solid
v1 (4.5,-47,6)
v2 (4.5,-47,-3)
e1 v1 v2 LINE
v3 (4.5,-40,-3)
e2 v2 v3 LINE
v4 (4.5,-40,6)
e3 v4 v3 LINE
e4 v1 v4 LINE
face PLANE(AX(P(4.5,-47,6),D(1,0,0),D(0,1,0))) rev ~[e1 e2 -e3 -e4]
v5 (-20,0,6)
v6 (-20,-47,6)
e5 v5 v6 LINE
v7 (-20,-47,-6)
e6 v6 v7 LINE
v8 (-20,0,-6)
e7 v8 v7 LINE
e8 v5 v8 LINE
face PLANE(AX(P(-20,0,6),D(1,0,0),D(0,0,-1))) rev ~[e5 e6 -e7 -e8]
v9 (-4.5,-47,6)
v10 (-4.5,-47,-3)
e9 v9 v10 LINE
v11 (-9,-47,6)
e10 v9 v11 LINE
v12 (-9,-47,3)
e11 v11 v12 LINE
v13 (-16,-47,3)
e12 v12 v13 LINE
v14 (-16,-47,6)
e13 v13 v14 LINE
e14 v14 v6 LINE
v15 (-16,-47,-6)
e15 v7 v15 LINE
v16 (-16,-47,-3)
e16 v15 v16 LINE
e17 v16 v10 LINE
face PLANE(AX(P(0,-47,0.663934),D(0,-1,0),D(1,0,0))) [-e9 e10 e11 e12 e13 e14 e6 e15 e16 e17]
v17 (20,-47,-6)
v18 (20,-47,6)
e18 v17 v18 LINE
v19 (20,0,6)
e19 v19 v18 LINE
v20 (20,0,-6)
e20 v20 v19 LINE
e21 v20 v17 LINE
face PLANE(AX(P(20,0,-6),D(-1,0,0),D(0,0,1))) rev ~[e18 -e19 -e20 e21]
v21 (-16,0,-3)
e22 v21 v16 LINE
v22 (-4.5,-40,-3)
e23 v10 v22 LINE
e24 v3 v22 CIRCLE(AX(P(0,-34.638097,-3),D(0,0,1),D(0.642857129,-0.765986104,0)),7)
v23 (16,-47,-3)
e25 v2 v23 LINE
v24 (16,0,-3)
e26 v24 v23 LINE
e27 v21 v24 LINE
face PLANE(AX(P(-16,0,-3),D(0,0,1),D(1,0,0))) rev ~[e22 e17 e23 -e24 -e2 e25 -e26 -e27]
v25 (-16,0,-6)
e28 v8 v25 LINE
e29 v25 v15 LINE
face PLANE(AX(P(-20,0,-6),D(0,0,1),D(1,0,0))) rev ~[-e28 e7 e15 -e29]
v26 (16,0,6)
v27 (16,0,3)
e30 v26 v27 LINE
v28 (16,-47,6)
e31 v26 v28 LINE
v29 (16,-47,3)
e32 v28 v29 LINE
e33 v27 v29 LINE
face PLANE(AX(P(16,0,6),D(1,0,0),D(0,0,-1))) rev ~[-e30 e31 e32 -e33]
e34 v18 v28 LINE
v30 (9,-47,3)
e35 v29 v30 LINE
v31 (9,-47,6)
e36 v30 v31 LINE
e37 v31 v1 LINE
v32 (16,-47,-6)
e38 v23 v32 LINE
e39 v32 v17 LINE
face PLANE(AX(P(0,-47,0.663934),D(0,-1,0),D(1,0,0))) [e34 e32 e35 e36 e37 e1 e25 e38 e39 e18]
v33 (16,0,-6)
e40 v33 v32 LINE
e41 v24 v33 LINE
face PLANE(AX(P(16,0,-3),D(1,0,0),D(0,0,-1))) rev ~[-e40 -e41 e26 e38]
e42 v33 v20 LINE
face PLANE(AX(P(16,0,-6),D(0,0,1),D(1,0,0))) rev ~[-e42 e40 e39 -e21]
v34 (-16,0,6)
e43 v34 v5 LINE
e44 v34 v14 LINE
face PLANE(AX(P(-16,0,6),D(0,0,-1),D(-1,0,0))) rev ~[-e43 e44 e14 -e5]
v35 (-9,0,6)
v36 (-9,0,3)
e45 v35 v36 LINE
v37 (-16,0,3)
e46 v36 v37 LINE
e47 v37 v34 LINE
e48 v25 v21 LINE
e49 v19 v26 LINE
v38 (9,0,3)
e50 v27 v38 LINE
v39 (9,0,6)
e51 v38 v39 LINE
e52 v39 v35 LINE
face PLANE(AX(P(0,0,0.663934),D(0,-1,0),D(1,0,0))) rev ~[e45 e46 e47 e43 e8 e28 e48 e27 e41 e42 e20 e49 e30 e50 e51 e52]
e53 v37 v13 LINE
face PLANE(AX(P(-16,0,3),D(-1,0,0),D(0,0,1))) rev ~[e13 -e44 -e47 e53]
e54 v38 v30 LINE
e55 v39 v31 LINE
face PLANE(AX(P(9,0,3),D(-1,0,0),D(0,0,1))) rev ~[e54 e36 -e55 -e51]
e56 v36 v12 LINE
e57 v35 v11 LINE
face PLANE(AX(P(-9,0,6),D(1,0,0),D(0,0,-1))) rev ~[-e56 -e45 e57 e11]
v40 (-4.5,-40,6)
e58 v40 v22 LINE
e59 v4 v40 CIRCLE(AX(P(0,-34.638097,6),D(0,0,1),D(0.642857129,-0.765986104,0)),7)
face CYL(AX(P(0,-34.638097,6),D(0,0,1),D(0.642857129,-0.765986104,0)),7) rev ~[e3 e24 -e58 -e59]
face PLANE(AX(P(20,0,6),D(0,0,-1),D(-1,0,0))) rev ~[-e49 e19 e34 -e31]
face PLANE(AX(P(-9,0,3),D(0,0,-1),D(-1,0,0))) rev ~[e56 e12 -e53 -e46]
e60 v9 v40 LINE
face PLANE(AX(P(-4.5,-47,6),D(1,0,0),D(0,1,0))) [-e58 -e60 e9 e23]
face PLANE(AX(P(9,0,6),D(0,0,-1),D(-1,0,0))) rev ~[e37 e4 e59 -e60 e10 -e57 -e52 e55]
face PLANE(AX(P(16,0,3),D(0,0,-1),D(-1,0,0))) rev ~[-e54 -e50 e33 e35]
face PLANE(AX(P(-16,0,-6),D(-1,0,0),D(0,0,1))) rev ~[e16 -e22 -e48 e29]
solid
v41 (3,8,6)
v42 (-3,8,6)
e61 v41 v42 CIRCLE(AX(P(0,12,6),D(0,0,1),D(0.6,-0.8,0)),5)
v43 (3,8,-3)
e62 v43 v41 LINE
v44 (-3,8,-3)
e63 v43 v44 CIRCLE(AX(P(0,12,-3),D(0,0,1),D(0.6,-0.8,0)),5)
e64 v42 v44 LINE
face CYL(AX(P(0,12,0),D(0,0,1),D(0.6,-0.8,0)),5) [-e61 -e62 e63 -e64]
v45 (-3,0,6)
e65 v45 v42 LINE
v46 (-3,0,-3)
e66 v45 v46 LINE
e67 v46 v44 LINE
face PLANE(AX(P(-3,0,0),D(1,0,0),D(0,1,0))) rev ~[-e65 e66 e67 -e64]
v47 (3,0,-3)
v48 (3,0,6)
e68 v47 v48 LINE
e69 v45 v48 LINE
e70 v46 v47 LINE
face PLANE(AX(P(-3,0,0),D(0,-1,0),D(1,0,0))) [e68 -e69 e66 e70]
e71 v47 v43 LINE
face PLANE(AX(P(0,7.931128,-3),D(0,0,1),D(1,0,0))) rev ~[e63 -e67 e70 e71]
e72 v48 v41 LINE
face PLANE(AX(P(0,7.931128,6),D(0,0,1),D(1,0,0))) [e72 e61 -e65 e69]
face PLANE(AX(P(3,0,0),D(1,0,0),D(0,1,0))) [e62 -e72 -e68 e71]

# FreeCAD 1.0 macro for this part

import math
import FreeCAD as App
import Part
import Sketcher
Q = App.Units.Quantity

doc = App.newDocument("Part")
body = doc.addObject("PartDesign::Body", "Body")

sketch1 = body.newObject("Sketcher::SketchObject", "Sketch")
sketch1.AttachmentSupport = (doc.getObject("XZ_Plane"), [""])
sketch1.MapMode = "FlatFace"
sketch1.addGeometry(Part.LineSegment(App.Vector(-20, 6, 0), App.Vector(-20, -6, 0)), False)
sketch1.addGeometry(Part.LineSegment(App.Vector(-20, -6, 0), App.Vector(-16, -6, 0)), False)
sketch1.addGeometry(Part.LineSegment(App.Vector(-16, -6, 0), App.Vector(-16, -3, 0)), False)
sketch1.addGeometry(Part.LineSegment(App.Vector(-16, -3, 0), App.Vector(16, -3, 0)), False)
sketch1.addGeometry(Part.LineSegment(App.Vector(16, -3, 0), App.Vector(16, -6, 0)), False)
sketch1.addGeometry(Part.LineSegment(App.Vector(16, -6, 0), App.Vector(20, -6, 0)), False)
sketch1.addGeometry(Part.LineSegment(App.Vector(20, -6, 0), App.Vector(20, 6, 0)), False)
sketch1.addGeometry(Part.LineSegment(App.Vector(20, 6, 0), App.Vector(16, 6, 0)), False)
sketch1.addGeometry(Part.LineSegment(App.Vector(16, 6, 0), App.Vector(16, 3, 0)), False)
sketch1.addGeometry(Part.LineSegment(App.Vector(16, 3, 0), App.Vector(9, 3, 0)), False)
sketch1.addGeometry(Part.LineSegment(App.Vector(9, 3, 0), App.Vector(9, 6, 0)), False)
sketch1.addGeometry(Part.LineSegment(App.Vector(9, 6, 0), App.Vector(-9, 6, 0)), False)
sketch1.addGeometry(Part.LineSegment(App.Vector(-9, 6, 0), App.Vector(-9, 3, 0)), False)
sketch1.addGeometry(Part.LineSegment(App.Vector(-9, 3, 0), App.Vector(-16, 3, 0)), False)
sketch1.addGeometry(Part.LineSegment(App.Vector(-16, 3, 0), App.Vector(-16, 6, 0)), False)
sketch1.addGeometry(Part.LineSegment(App.Vector(-16, 6, 0), App.Vector(-20, 6, 0)), False)
sketch1.addConstraint(Sketcher.Constraint("Coincident", 0, 2, 1, 1))
sketch1.addConstraint(Sketcher.Constraint("Coincident", 1, 2, 2, 1))
sketch1.addConstraint(Sketcher.Constraint("Coincident", 2, 2, 3, 1))
sketch1.addConstraint(Sketcher.Constraint("Coincident", 3, 2, 4, 1))
sketch1.addConstraint(Sketcher.Constraint("Coincident", 4, 2, 5, 1))
sketch1.addConstraint(Sketcher.Constraint("Coincident", 5, 2, 6, 1))
sketch1.addConstraint(Sketcher.Constraint("Coincident", 6, 2, 7, 1))
sketch1.addConstraint(Sketcher.Constraint("Coincident", 7, 2, 8, 1))
sketch1.addConstraint(Sketcher.Constraint("Coincident", 8, 2, 9, 1))
sketch1.addConstraint(Sketcher.Constraint("Coincident", 9, 2, 10, 1))
sketch1.addConstraint(Sketcher.Constraint("Coincident", 10, 2, 11, 1))
sketch1.addConstraint(Sketcher.Constraint("Coincident", 11, 2, 12, 1))
sketch1.addConstraint(Sketcher.Constraint("Coincident", 12, 2, 13, 1))
sketch1.addConstraint(Sketcher.Constraint("Coincident", 13, 2, 14, 1))
sketch1.addConstraint(Sketcher.Constraint("Coincident", 14, 2, 15, 1))
sketch1.addConstraint(Sketcher.Constraint("Coincident", 15, 2, 0, 1))
sketch1.addConstraint(Sketcher.Constraint("Vertical", 0))
sketch1.addConstraint(Sketcher.Constraint("Horizontal", 1))
sketch1.addConstraint(Sketcher.Constraint("Vertical", 2))
sketch1.addConstraint(Sketcher.Constraint("Horizontal", 3))
sketch1.addConstraint(Sketcher.Constraint("Vertical", 4))
sketch1.addConstraint(Sketcher.Constraint("Horizontal", 5))
sketch1.addConstraint(Sketcher.Constraint("Vertical", 6))
sketch1.addConstraint(Sketcher.Constraint("Horizontal", 7))
sketch1.addConstraint(Sketcher.Constraint("Vertical", 8))
sketch1.addConstraint(Sketcher.Constraint("Horizontal", 9))
sketch1.addConstraint(Sketcher.Constraint("Vertical", 10))
sketch1.addConstraint(Sketcher.Constraint("Horizontal", 11))
sketch1.addConstraint(Sketcher.Constraint("Vertical", 12))
sketch1.addConstraint(Sketcher.Constraint("Horizontal", 13))
sketch1.addConstraint(Sketcher.Constraint("Vertical", 14))
sketch1.addConstraint(Sketcher.Constraint("Horizontal", 15))
sketch1.addConstraint(Sketcher.Constraint("Symmetric", 0, 2, 6, 2, -1, 1))
sketch1.addConstraint(Sketcher.Constraint("Symmetric", 2, 2, 8, 2, -1, 1))
sketch1.addConstraint(Sketcher.Constraint("Symmetric", 3, 2, 13, 2, -1, 1))
sketch1.addConstraint(Sketcher.Constraint("Symmetric", 1, 2, 4, 2, -2))
sketch1.addConstraint(Sketcher.Constraint("Horizontal", 7, 2, 10, 2))
sketch1.addConstraint(Sketcher.Constraint("Horizontal", 11, 2, 14, 2))
sketch1.addConstraint(Sketcher.Constraint("Equal", 9, 13))
sketch1.addConstraint(Sketcher.Constraint("DistanceX", 1, 1, 1, 2, Q("4 mm")))
sketch1.addConstraint(Sketcher.Constraint("DistanceX", 3, 1, 3, 2, Q("32 mm")))
sketch1.addConstraint(Sketcher.Constraint("DistanceX", 9, 2, 9, 1, Q("7 mm")))
sketch1.addConstraint(Sketcher.Constraint("DistanceY", 0, 2, 0, 1, Q("12 mm")))
sketch1.addConstraint(Sketcher.Constraint("DistanceY", 2, 1, 2, 2, Q("3 mm")))
pad1 = body.newObject("PartDesign::Pad", "Pad")
pad1.Profile = sketch1
pad1.Length = 47

sketch2 = body.newObject("Sketcher::SketchObject", "Sketch001")
sketch2.AttachmentSupport = (doc.getObject("XY_Plane"), [""])
sketch2.MapMode = "FlatFace"
sketch2.AttachmentOffset = App.Placement(App.Vector(0, 0, 6), App.Rotation())
sketch2.addGeometry(Part.LineSegment(App.Vector(-4, -47, 0), App.Vector(4, -47, 0)), False)
sketch2.addGeometry(Part.LineSegment(App.Vector(4, -47, 0), App.Vector(4, -40, 0)), False)
sketch2.addGeometry(Part.ArcOfCircle(Part.Circle(App.Vector(0, -35, 0), App.Vector(0, 0, 1), 7), math.radians(-50), math.radians(230)), False)
sketch2.addGeometry(Part.LineSegment(App.Vector(-4, -40, 0), App.Vector(-4, -47, 0)), False)
sketch2.addConstraint(Sketcher.Constraint("Coincident", 0, 2, 1, 1))
sketch2.addConstraint(Sketcher.Constraint("Coincident", 1, 2, 2, 1))
sketch2.addConstraint(Sketcher.Constraint("Coincident", 2, 2, 3, 1))
sketch2.addConstraint(Sketcher.Constraint("Coincident", 3, 2, 0, 1))
sketch2.addConstraint(Sketcher.Constraint("Horizontal", 0))
sketch2.addConstraint(Sketcher.Constraint("Vertical", 1))
sketch2.addConstraint(Sketcher.Constraint("Vertical", 3))
sketch2.addConstraint(Sketcher.Constraint("Symmetric", 1, 2, 2, 2, -2))
sketch2.addConstraint(Sketcher.Constraint("Radius", 2, Q("7 mm")))
sketch2.addConstraint(Sketcher.Constraint("DistanceX", 0, 1, 0, 2, Q("9 mm")))
sketch2.addConstraint(Sketcher.Constraint("DistanceY", 1, 1, 1, 2, Q("7 mm")))
sketch2.addConstraint(Sketcher.Constraint("DistanceY", 0, 2, -1, 1, Q("47 mm")))
pocket1 = body.newObject("PartDesign::Pocket", "Pocket")
pocket1.Profile = sketch2
pocket1.Type = "ThroughAll"
body2 = doc.addObject("PartDesign::Body", "Body001")

sketch3 = body2.newObject("Sketcher::SketchObject", "Sketch002")
sketch3.AttachmentSupport = (doc.getObject("XY_Plane001"), [""])
sketch3.MapMode = "FlatFace"
sketch3.addGeometry(Part.LineSegment(App.Vector(-3, 0, 0), App.Vector(3, 0, 0)), False)
sketch3.addGeometry(Part.LineSegment(App.Vector(3, 0, 0), App.Vector(3, 8, 0)), False)
sketch3.addGeometry(Part.ArcOfCircle(Part.Circle(App.Vector(0, 12, 0), App.Vector(0, 0, 1), 5), math.radians(-53), math.radians(233)), False)
sketch3.addGeometry(Part.LineSegment(App.Vector(-3, 8, 0), App.Vector(-3, 0, 0)), False)
sketch3.addConstraint(Sketcher.Constraint("Coincident", 0, 2, 1, 1))
sketch3.addConstraint(Sketcher.Constraint("Coincident", 1, 2, 2, 1))
sketch3.addConstraint(Sketcher.Constraint("Coincident", 2, 2, 3, 1))
sketch3.addConstraint(Sketcher.Constraint("Coincident", 3, 2, 0, 1))
sketch3.addConstraint(Sketcher.Constraint("Horizontal", 0))
sketch3.addConstraint(Sketcher.Constraint("Vertical", 1))
sketch3.addConstraint(Sketcher.Constraint("Vertical", 3))
sketch3.addConstraint(Sketcher.Constraint("Symmetric", 0, 2, 3, 2, -1, 1))
sketch3.addConstraint(Sketcher.Constraint("PointOnObject", 2, 3, -2))
sketch3.addConstraint(Sketcher.Constraint("Radius", 2, Q("5 mm")))
sketch3.addConstraint(Sketcher.Constraint("DistanceX", 0, 1, 0, 2, Q("6 mm")))
sketch3.addConstraint(Sketcher.Constraint("DistanceY", 1, 1, 1, 2, Q("8 mm")))
pad2 = body2.newObject("PartDesign::Pad", "Pad001")
pad2.Profile = sketch3
pad2.Type = "TwoLengths"
pad2.Length = 6
pad2.Length2 = 3

doc.recompute()
